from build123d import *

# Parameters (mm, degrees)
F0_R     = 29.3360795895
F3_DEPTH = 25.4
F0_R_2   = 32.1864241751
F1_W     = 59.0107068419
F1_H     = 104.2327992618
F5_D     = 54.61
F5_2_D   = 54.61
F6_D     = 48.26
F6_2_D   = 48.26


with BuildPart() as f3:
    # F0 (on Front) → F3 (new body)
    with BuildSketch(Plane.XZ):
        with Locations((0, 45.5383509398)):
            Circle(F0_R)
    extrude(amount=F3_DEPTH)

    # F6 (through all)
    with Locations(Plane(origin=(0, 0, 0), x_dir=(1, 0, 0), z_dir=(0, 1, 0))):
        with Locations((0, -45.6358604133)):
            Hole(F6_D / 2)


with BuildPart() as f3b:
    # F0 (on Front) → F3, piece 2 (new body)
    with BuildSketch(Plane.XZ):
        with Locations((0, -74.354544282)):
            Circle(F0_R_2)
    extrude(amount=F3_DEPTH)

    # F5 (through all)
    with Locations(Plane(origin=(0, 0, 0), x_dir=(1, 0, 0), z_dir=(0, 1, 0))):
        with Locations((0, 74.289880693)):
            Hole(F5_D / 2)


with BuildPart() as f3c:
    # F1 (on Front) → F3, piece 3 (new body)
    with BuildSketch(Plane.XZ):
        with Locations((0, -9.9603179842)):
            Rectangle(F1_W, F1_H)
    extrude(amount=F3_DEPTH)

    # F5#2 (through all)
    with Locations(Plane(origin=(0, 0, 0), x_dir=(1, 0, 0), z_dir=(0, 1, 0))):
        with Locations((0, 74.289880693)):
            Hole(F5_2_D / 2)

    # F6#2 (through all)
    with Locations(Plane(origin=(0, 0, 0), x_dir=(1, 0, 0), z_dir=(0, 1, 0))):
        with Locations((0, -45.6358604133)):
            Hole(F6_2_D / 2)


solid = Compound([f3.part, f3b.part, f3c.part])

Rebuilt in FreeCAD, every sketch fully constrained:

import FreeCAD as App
import Part
import Sketcher

V = App.Vector
Q = App.Units.Quantity


def add_polygon(sketch, points):
    """Adds a closed chain of lines whose ends are joined by coincident constraints."""
    first, n = sketch.GeometryCount, len(points)
    for a, b in zip(points, points[1:] + points[:1]):
        sketch.addGeometry(Part.LineSegment(App.Vector(*a, 0), App.Vector(*b, 0)), False)
    for i in range(n):
        sketch.addConstraint(Sketcher.Constraint("Coincident", first + i, 2, first + (i + 1) % n, 1))

doc = App.newDocument("Part")
body = doc.addObject("PartDesign::Body", "Body")

# Sketch on XZ plane
sketch1 = body.newObject("Sketcher::SketchObject", "Sketch")
sketch1.AttachmentSupport = (doc.getObject("XZ_Plane"), [""])
sketch1.MapMode = "FlatFace"
sketch1.addGeometry(Part.Circle(V(0, 45.538351, 0), V(0, 0, 1), 29.33608), False)
sketch1.addConstraint(Sketcher.Constraint("PointOnObject", 0, 3, -2))
sketch1.addConstraint(Sketcher.Constraint("Diameter", 0, 58.672159))
sketch1.addConstraint(Sketcher.Constraint("DistanceY", -1, 1, 0, 3, 45.538351))
pad1 = body.newObject("PartDesign::Pad", "Pad")
pad1.Profile = sketch1
pad1.Length = Q("1 in")

# Sketch on XZ plane
sketch2 = body.newObject("Sketcher::SketchObject", "Sketch001")
sketch2.AttachmentSupport = (doc.getObject("XZ_Plane"), [""])
sketch2.MapMode = "FlatFace"
sketch2.addGeometry(Part.Circle(V(0, 45.63586, 0), V(0, 0, 1), 24.13), False)
sketch2.addConstraint(Sketcher.Constraint("PointOnObject", 0, 3, -2))
sketch2.addConstraint(Sketcher.Constraint("Diameter", 0, Q("1.9 in")))
sketch2.addConstraint(Sketcher.Constraint("DistanceY", -1, 1, 0, 3, 45.63586))
doc.recompute()
hole = body.newObject("PartDesign::Hole", "Hole")
hole.Profile = sketch2
hole.ThreadType = "None"
hole.Diameter = Q("1.9 in")
hole.DepthType = "ThroughAll"
hole.Reversed = True
body2 = doc.addObject("PartDesign::Body", "Body001")

# Sketch on XZ plane
sketch3 = body2.newObject("Sketcher::SketchObject", "Sketch002")
sketch3.AttachmentSupport = (doc.getObject("XZ_Plane001"), [""])
sketch3.MapMode = "FlatFace"
sketch3.addGeometry(Part.Circle(V(0, -74.354544, 0), V(0, 0, 1), 32.186424), False)
sketch3.addConstraint(Sketcher.Constraint("PointOnObject", 0, 3, -2))
sketch3.addConstraint(Sketcher.Constraint("Diameter", 0, 64.372848))
sketch3.addConstraint(Sketcher.Constraint("DistanceY", 0, 3, -1, 1, 74.354544))
pad2 = body2.newObject("PartDesign::Pad", "Pad001")
pad2.Profile = sketch3
pad2.Length = Q("1 in")

# Sketch on XZ plane
sketch4 = body2.newObject("Sketcher::SketchObject", "Sketch003")
sketch4.AttachmentSupport = (doc.getObject("XZ_Plane001"), [""])
sketch4.MapMode = "FlatFace"
sketch4.addGeometry(Part.Circle(V(0, -74.289881, 0), V(0, 0, 1), 27.305), False)
sketch4.addConstraint(Sketcher.Constraint("PointOnObject", 0, 3, -2))
sketch4.addConstraint(Sketcher.Constraint("Diameter", 0, Q("2.15 in")))
sketch4.addConstraint(Sketcher.Constraint("DistanceY", 0, 3, -1, 1, 74.289881))
doc.recompute()
hole2 = body2.newObject("PartDesign::Hole", "Hole001")
hole2.Profile = sketch4
hole2.ThreadType = "None"
hole2.Diameter = Q("2.15 in")
hole2.DepthType = "ThroughAll"
hole2.Reversed = True
body3 = doc.addObject("PartDesign::Body", "Body002")

# Sketch on XZ plane
sketch5 = body3.newObject("Sketcher::SketchObject", "Sketch004")
sketch5.AttachmentSupport = (doc.getObject("XZ_Plane002"), [""])
sketch5.MapMode = "FlatFace"
add_polygon(sketch5, [(-29.505353, 42.156082), (-29.505353, -62.076718), (29.505353, -62.076718), (29.505353, 42.156082)])  # lines 0-3
sketch5.addConstraint(Sketcher.Constraint("Vertical", 0))
sketch5.addConstraint(Sketcher.Constraint("Horizontal", 1))
sketch5.addConstraint(Sketcher.Constraint("Vertical", 2))
sketch5.addConstraint(Sketcher.Constraint("Horizontal", 3))
sketch5.addConstraint(Sketcher.Constraint("DistanceY", 0, 2, 0, 1, 104.232799))
sketch5.addConstraint(Sketcher.Constraint("DistanceX", 1, 1, 1, 2, 59.010707))
sketch5.addConstraint(Sketcher.Constraint("DistanceY", -1, 1, 2, 2, 42.156082))
sketch5.addConstraint(Sketcher.Constraint("DistanceX", 0, 2, -1, 1, 29.505353))
pad3 = body3.newObject("PartDesign::Pad", "Pad002")
pad3.Profile = sketch5
pad3.Length = Q("1 in")

# Sketch on XZ plane
sketch6 = body3.newObject("Sketcher::SketchObject", "Sketch005")
sketch6.AttachmentSupport = (doc.getObject("XZ_Plane002"), [""])
sketch6.MapMode = "FlatFace"
sketch6.addGeometry(Part.Circle(V(0, -74.289881, 0), V(0, 0, 1), 27.305), False)
sketch6.addConstraint(Sketcher.Constraint("PointOnObject", 0, 3, -2))
sketch6.addConstraint(Sketcher.Constraint("Diameter", 0, Q("2.15 in")))
sketch6.addConstraint(Sketcher.Constraint("DistanceY", 0, 3, -1, 1, 74.289881))
doc.recompute()
hole3 = body3.newObject("PartDesign::Hole", "Hole002")
hole3.Profile = sketch6
hole3.ThreadType = "None"
hole3.Diameter = Q("2.15 in")
hole3.DepthType = "ThroughAll"
hole3.Reversed = True

# Sketch on XZ plane
sketch7 = body3.newObject("Sketcher::SketchObject", "Sketch006")
sketch7.AttachmentSupport = (doc.getObject("XZ_Plane002"), [""])
sketch7.MapMode = "FlatFace"
sketch7.addGeometry(Part.Circle(V(0, 45.63586, 0), V(0, 0, 1), 24.13), False)
sketch7.addConstraint(Sketcher.Constraint("PointOnObject", 0, 3, -2))
sketch7.addConstraint(Sketcher.Constraint("Diameter", 0, Q("1.9 in")))
sketch7.addConstraint(Sketcher.Constraint("DistanceY", -1, 1, 0, 3, 45.63586))
doc.recompute()
hole4 = body3.newObject("PartDesign::Hole", "Hole003")
hole4.Profile = sketch7
hole4.ThreadType = "None"
hole4.Diameter = Q("1.9 in")
hole4.DepthType = "ThroughAll"
hole4.Reversed = True

doc.recompute()
